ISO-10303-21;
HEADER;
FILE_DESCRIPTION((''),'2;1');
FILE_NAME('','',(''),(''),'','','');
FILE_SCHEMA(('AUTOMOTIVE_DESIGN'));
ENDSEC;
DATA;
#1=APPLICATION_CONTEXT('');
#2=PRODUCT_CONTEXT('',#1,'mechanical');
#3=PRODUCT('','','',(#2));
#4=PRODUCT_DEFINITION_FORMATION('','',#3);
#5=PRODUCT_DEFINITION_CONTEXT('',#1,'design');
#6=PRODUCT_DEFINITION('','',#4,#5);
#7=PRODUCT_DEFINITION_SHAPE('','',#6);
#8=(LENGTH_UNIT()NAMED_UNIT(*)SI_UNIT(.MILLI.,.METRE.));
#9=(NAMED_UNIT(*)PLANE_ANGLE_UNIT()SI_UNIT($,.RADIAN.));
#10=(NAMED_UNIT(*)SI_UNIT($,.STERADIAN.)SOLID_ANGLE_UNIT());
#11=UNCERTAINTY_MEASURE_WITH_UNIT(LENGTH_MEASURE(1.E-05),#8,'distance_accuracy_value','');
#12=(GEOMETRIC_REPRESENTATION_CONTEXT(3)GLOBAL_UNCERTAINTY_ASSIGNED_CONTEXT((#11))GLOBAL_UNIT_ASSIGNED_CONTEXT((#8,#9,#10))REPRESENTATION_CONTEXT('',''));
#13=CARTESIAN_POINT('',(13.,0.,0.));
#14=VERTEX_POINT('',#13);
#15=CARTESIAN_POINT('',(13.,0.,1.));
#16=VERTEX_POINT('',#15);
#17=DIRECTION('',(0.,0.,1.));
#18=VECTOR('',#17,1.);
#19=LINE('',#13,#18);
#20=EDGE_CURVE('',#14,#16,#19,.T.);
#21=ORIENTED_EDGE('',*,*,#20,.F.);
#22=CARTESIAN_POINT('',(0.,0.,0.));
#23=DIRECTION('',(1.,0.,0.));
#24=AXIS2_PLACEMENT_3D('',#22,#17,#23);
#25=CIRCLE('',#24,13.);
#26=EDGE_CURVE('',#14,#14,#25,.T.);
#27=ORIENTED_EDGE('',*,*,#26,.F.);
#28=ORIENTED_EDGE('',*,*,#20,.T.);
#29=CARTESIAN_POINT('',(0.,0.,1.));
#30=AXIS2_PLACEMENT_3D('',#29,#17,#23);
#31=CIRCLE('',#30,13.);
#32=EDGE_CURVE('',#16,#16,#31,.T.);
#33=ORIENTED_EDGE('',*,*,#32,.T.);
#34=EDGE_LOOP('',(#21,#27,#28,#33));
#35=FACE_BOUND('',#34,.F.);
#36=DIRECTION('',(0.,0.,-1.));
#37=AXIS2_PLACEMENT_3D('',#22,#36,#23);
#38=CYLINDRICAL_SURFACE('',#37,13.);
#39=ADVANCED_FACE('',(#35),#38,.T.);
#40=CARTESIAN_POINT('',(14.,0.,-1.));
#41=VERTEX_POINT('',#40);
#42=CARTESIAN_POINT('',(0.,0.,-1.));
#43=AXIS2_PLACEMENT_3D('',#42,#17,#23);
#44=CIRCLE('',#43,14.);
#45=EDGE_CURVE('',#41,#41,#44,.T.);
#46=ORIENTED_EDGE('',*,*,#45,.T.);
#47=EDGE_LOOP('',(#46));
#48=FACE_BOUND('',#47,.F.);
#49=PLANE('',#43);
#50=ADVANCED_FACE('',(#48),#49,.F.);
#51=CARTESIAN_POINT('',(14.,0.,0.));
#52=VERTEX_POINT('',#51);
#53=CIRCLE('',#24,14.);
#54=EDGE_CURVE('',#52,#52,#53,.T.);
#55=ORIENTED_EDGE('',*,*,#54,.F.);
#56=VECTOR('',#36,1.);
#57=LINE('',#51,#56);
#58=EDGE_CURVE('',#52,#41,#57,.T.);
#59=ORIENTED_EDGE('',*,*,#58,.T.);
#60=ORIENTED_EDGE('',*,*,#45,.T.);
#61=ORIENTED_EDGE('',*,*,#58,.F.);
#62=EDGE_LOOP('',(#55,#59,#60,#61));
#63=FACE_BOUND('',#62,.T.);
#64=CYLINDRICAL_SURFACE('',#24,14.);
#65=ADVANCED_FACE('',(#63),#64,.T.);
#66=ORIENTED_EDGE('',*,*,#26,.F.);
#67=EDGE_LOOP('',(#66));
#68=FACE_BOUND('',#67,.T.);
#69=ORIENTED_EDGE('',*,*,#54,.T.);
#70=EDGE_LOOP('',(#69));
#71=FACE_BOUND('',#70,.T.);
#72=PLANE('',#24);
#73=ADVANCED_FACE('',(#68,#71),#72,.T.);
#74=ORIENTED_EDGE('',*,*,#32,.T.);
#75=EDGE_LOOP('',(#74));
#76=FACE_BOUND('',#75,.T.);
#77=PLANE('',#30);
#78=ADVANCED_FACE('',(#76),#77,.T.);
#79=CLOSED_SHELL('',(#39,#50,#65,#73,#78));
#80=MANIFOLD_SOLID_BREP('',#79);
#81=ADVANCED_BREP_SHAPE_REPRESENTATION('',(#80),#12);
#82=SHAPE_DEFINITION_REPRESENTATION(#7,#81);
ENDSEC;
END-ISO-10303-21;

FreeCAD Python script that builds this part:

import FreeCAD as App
import Part
import Sketcher
Q = App.Units.Quantity

doc = App.newDocument("Part")
params = doc.addObject("Spreadsheet::Sheet", "Params")
for row, (alias, value) in enumerate([
    ("sketch1_diameter", "28 mm"),
    ("pad1_length", "1 mm"),
    ("sketch2_diameter", "26 mm"),
    ("pad2_length", "1 mm"),
], start=1):
    params.set(f"A{row}", alias)
    params.set(f"B{row}", "=" + value)
    params.setAlias(f"B{row}", alias)

body = doc.addObject("PartDesign::Body", "Body")

# Sketch on XY plane
sketch1 = doc.addObject("Sketcher::SketchObject", "Sketch")
body.addObject(sketch1)
sketch1.AttachmentSupport = (doc.XY_Plane, [""])
sketch1.MapMode = "FlatFace"
sketch1.addGeometry(Part.Circle(App.Vector(0, 0, 0), App.Vector(0, 0, 1), 14), False)
sketch1.addConstraint([
    Sketcher.Constraint("Coincident", 0, 3, -1, 1),
    Sketcher.Constraint("Diameter", 0, Q("28 mm")),
])
sketch1.setExpression("Constraints[1]", "Params.sketch1_diameter")
pad1 = doc.addObject("PartDesign::Pad", "Pad")
body.addObject(pad1)
pad1.Profile = sketch1
pad1.setExpression("Length", "Params.pad1_length")
pad1.Reversed = True

# Sketch on XY plane
sketch2 = doc.addObject("Sketcher::SketchObject", "Sketch001")
body.addObject(sketch2)
sketch2.AttachmentSupport = (doc.XY_Plane, [""])
sketch2.MapMode = "FlatFace"
sketch2.addGeometry(Part.Circle(App.Vector(0, 0, 0), App.Vector(0, 0, 1), 13), False)
sketch2.addConstraint([
    Sketcher.Constraint("Coincident", 0, 3, -1, 1),
    Sketcher.Constraint("Diameter", 0, Q("26 mm")),
])
sketch2.setExpression("Constraints[1]", "Params.sketch2_diameter")
pad2 = doc.addObject("PartDesign::Pad", "Pad001")
body.addObject(pad2)
pad2.Profile = sketch2
pad2.setExpression("Length", "Params.pad2_length")

doc.recompute()
